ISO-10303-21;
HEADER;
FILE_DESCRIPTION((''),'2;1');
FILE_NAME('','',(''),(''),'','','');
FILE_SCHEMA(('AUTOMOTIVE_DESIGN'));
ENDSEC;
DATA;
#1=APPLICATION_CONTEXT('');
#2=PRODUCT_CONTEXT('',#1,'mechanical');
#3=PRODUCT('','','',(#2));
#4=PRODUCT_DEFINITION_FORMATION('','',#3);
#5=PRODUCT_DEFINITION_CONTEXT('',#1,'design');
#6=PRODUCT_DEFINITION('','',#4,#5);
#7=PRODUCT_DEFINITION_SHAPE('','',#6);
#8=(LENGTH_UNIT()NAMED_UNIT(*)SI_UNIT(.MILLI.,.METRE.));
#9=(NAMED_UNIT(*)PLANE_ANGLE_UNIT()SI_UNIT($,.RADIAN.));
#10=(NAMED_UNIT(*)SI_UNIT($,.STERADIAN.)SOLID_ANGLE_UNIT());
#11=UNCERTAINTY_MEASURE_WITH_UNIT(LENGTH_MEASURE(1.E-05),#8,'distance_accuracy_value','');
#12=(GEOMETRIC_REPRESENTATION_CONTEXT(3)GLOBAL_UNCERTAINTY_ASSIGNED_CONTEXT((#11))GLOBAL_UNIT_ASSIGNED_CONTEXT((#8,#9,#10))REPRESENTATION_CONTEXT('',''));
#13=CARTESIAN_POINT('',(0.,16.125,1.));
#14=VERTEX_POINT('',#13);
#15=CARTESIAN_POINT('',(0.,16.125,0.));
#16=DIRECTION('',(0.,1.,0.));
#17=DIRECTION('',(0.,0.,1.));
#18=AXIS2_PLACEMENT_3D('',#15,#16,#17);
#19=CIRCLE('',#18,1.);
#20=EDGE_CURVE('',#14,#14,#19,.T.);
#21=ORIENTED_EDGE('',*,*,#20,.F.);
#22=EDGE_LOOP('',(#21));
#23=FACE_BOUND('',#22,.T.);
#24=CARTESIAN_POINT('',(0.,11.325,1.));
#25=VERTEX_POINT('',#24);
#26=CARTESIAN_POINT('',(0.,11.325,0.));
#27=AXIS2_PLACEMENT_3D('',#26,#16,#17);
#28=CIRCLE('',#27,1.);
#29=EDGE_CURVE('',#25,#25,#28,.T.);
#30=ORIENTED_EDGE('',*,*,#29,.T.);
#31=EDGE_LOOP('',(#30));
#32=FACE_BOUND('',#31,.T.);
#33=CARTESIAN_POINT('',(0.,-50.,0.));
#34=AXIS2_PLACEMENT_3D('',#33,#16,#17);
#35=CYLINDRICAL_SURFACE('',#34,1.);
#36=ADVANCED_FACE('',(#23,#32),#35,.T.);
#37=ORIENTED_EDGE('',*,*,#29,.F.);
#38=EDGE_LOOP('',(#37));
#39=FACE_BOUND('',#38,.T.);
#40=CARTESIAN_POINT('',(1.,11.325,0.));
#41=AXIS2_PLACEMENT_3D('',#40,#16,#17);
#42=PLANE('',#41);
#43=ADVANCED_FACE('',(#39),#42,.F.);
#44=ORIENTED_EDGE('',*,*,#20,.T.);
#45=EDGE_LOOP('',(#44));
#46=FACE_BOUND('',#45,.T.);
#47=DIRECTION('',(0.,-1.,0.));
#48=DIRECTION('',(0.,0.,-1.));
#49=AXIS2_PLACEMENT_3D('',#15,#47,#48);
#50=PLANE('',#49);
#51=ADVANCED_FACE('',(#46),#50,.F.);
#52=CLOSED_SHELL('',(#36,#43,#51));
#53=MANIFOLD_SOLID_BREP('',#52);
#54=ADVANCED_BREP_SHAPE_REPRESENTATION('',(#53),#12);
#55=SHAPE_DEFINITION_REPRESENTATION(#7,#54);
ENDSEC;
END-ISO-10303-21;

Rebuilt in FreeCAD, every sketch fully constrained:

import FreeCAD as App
import Part
import Sketcher
Q = App.Units.Quantity

doc = App.newDocument("Part")
params = doc.addObject("Spreadsheet::Sheet", "Params")
for row, (alias, value) in enumerate([
    ("sketch1_width", "1 mm"),
    ("sketch1_height", "4.8 mm"),
    ("revolution_angle", "360 deg"),
], start=1):
    params.set(f"A{row}", alias)
    params.set(f"B{row}", "=" + value)
    params.setAlias(f"B{row}", alias)

body = doc.addObject("PartDesign::Body", "Body")

# Sketch on XY plane
sketch1 = doc.addObject("Sketcher::SketchObject", "Sketch")
body.addObject(sketch1)
sketch1.AttachmentSupport = (doc.XY_Plane, [""])
sketch1.MapMode = "FlatFace"
sketch1.addGeometry([
    Part.LineSegment(App.Vector(0, 16.1, 0), App.Vector(0, 11.3, 0)),
    Part.LineSegment(App.Vector(0, 11.3, 0), App.Vector(1, 11.3, 0)),
    Part.LineSegment(App.Vector(1, 11.3, 0), App.Vector(1, 16.1, 0)),
    Part.LineSegment(App.Vector(1, 16.1, 0), App.Vector(0, 16.1, 0)),
], False)
sketch1.addConstraint([
    Sketcher.Constraint("Coincident", 0, 2, 1, 1),
    Sketcher.Constraint("Coincident", 1, 2, 2, 1),
    Sketcher.Constraint("Coincident", 2, 2, 3, 1),
    Sketcher.Constraint("Coincident", 3, 2, 0, 1),
    Sketcher.Constraint("Vertical", 0),
    Sketcher.Constraint("Horizontal", 1),
    Sketcher.Constraint("Vertical", 2),
    Sketcher.Constraint("Horizontal", 3),
    Sketcher.Constraint("PointOnObject", 0, 2, -2),
    Sketcher.Constraint("DistanceX", 1, 1, 1, 2, Q("1 mm")),
    Sketcher.Constraint("DistanceY", 0, 2, 0, 1, Q("4.8 mm")),
    Sketcher.Constraint("DistanceY", -1, 1, 0, 2, Q("11.325 mm")),
])
sketch1.setExpression("Constraints[9]", "Params.sketch1_width")
sketch1.setExpression("Constraints[10]", "Params.sketch1_height")
revolution = doc.addObject("PartDesign::Revolution", "Revolution")
body.addObject(revolution)
revolution.Profile = sketch1
revolution.ReferenceAxis = (sketch1, ["V_Axis"])
revolution.setExpression("Angle", "Params.revolution_angle")

doc.recompute()
